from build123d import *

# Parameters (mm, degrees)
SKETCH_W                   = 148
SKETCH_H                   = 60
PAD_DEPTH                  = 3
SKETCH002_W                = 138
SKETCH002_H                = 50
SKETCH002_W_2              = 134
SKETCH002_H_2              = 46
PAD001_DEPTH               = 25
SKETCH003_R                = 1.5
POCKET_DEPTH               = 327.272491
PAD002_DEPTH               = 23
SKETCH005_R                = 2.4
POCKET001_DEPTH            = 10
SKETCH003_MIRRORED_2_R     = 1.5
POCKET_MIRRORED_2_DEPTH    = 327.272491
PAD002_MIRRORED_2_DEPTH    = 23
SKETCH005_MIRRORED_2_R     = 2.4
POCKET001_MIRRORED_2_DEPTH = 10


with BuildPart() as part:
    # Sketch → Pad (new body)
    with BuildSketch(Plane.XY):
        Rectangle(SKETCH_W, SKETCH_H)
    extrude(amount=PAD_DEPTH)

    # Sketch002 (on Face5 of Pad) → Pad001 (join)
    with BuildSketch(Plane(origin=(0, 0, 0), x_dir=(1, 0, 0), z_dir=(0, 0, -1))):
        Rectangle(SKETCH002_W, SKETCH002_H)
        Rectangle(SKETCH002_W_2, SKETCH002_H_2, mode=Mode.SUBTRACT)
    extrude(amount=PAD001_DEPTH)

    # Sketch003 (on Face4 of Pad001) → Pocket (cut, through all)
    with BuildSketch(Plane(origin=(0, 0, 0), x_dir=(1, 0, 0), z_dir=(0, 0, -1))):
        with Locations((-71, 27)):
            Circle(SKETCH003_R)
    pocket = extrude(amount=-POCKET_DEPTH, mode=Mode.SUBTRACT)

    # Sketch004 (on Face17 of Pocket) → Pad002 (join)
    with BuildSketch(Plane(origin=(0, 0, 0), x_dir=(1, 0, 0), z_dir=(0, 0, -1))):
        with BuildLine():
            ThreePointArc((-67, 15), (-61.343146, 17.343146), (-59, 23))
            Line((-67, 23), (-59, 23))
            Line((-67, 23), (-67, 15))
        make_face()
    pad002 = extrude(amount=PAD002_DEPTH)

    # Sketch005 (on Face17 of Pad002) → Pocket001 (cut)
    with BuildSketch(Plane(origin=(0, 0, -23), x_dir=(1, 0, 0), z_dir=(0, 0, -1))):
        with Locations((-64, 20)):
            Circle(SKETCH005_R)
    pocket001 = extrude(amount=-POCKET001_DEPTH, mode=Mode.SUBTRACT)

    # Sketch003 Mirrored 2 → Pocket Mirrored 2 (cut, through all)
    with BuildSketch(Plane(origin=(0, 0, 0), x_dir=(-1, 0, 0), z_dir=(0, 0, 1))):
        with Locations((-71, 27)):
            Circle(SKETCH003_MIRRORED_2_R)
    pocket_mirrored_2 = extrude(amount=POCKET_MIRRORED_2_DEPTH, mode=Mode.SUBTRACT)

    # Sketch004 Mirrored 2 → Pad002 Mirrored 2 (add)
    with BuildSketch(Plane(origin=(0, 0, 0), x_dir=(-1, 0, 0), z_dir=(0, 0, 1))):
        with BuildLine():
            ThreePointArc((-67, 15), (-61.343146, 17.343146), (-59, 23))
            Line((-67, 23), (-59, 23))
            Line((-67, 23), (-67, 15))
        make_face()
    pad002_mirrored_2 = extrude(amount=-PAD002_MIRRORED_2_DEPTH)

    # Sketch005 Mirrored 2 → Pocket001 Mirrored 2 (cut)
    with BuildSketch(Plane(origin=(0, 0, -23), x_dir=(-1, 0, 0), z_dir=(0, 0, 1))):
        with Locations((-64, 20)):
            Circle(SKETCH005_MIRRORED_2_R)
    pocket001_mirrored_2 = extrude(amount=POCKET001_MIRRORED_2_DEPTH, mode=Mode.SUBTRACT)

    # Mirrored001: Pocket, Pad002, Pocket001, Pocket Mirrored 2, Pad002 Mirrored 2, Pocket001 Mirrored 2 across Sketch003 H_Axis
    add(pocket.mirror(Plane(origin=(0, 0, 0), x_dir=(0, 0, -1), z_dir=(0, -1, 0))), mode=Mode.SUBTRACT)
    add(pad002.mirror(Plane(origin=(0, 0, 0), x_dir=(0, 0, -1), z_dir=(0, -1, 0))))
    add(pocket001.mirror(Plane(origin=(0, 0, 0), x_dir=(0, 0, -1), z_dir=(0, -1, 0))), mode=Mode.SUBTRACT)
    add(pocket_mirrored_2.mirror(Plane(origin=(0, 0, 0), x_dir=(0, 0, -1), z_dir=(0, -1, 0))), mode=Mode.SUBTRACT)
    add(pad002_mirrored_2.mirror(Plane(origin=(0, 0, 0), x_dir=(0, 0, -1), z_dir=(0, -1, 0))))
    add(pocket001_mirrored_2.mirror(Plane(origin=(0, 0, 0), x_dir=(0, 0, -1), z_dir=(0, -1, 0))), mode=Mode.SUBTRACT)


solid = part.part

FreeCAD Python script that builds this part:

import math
import FreeCAD as App
import Part
import Sketcher

V = App.Vector


def add_polygon(sketch, points):
    """Adds a closed chain of lines whose ends are joined by coincident constraints."""
    first, n = sketch.GeometryCount, len(points)
    for a, b in zip(points, points[1:] + points[:1]):
        sketch.addGeometry(Part.LineSegment(App.Vector(*a, 0), App.Vector(*b, 0)), False)
    for i in range(n):
        sketch.addConstraint(Sketcher.Constraint("Coincident", first + i, 2, first + (i + 1) % n, 1))

doc = App.newDocument("Part")
body = doc.addObject("PartDesign::Body", "Body")

sketch1 = body.newObject("Sketcher::SketchObject", "Sketch")
sketch1.AttachmentSupport = (doc.getObject("XY_Plane"), [""])
sketch1.MapMode = "FlatFace"
add_polygon(sketch1, [(-74, 30), (-74, -30), (74, -30), (74, 30)])
sketch1.addConstraint([
    Sketcher.Constraint("Vertical", 0),
    Sketcher.Constraint("Horizontal", 1),
    Sketcher.Constraint("Vertical", 2),
    Sketcher.Constraint("Horizontal", 3),
    Sketcher.Constraint("Symmetric", 0, 2, 2, 2, -1, 1),
    Sketcher.Constraint("DistanceX", 1, 1, 1, 2, 148.0),
    Sketcher.Constraint("DistanceY", 0, 2, 0, 1, 60.0),
])
pad1 = body.newObject("PartDesign::Pad", "Pad")
pad1.Profile = sketch1
pad1.Length = 3

sketch2 = body.newObject("Sketcher::SketchObject", "Sketch001")
sketch2.AttachmentSupport = (doc.getObject("XY_Plane"), [""])
sketch2.MapMode = "FlatFace"
add_polygon(sketch2, [(-69, -25), (-69, 25), (69, 25), (69, -25)])
add_polygon(sketch2, [(67, 23), (-67, 23), (-67, -23), (67, -23)])
sketch2.addConstraint([
    Sketcher.Constraint("Vertical", 0),
    Sketcher.Constraint("Horizontal", 1),
    Sketcher.Constraint("Vertical", 2),
    Sketcher.Constraint("Horizontal", 3),
    Sketcher.Constraint("Horizontal", 4),
    Sketcher.Constraint("Vertical", 5),
    Sketcher.Constraint("Horizontal", 6),
    Sketcher.Constraint("Vertical", 7),
    Sketcher.Constraint("Symmetric", 0, 2, 2, 2, -1, 1),
    Sketcher.Constraint("Symmetric", 4, 2, 6, 2, -1, 1),
    Sketcher.Constraint("DistanceX", 1, 1, 1, 2, 138.0),
    Sketcher.Constraint("DistanceX", 4, 2, 4, 1, 134.0),
    Sketcher.Constraint("DistanceY", 0, 1, 0, 2, 50.0),
    Sketcher.Constraint("DistanceY", 5, 2, 5, 1, 46.0),
])
pad2 = body.newObject("PartDesign::Pad", "Pad001")
pad2.Profile = sketch2
pad2.Length = 25
pad2.Reversed = True

sketch3 = body.newObject("Sketcher::SketchObject", "Sketch002")
sketch3.AttachmentSupport = (doc.getObject("XY_Plane"), [""])
sketch3.MapMode = "FlatFace"
sketch3.addGeometry(Part.Circle(V(-71, -27, 0), V(0, 0, 1), 1.5), False)
sketch3.addConstraint([
    Sketcher.Constraint("Diameter", 0, 3.0),
    Sketcher.Constraint("DistanceX", 0, 3, -1, 1, 71.0),
    Sketcher.Constraint("DistanceY", 0, 3, -1, 1, 27.0),
])
pocket1 = body.newObject("PartDesign::Pocket", "Pocket")
pocket1.Profile = sketch3
pocket1.Type = "ThroughAll"
pocket1.Reversed = True

sketch4 = body.newObject("Sketcher::SketchObject", "Sketch003")
sketch4.AttachmentSupport = (doc.getObject("XY_Plane"), [""])
sketch4.MapMode = "FlatFace"
sketch4.addGeometry([
    Part.ArcOfCircle(Part.Circle(V(-67, -23, 0), V(0, 0, 1), 8), math.radians(0), math.radians(90)),
    Part.LineSegment(V(-59, -23, 0), V(-67, -23, 0)),
    Part.LineSegment(V(-67, -23, 0), V(-67, -15, 0)),
], False)
sketch4.addConstraint([
    Sketcher.Constraint("Coincident", 0, 1, 1, 1),
    Sketcher.Constraint("Coincident", 1, 2, 2, 1),
    Sketcher.Constraint("Coincident", 2, 2, 0, 2),
    Sketcher.Constraint("Horizontal", 1),
    Sketcher.Constraint("Vertical", 2),
    Sketcher.Constraint("Coincident", 1, 2, 0, 3),
    Sketcher.Constraint("Radius", 0, 8.000001),
    Sketcher.Constraint("DistanceX", 0, 3, -1, 1, 67.000001),
    Sketcher.Constraint("DistanceY", 0, 3, -1, 1, 23.000001),
])
pad3 = body.newObject("PartDesign::Pad", "Pad002")
pad3.Profile = sketch4
pad3.Length = 23
pad3.Reversed = True

sketch5 = body.newObject("Sketcher::SketchObject", "Sketch004")
sketch5.AttachmentSupport = (doc.getObject("XY_Plane"), [""])
sketch5.MapMode = "FlatFace"
sketch5.AttachmentOffset = App.Placement(V(0, 0, -23), App.Rotation())
sketch5.addGeometry(Part.Circle(V(-64, -20, 0), V(0, 0, 1), 2.4), False)
sketch5.addConstraint([
    Sketcher.Constraint("Diameter", 0, 4.8),
    Sketcher.Constraint("DistanceX", 0, 3, -1, 1, 64.0),
    Sketcher.Constraint("DistanceY", 0, 3, -1, 1, 20.0),
])
pocket2 = body.newObject("PartDesign::Pocket", "Pocket001")
pocket2.Profile = sketch5
pocket2.Length = 10
pocket2.Reversed = True

sketch6 = body.newObject("Sketcher::SketchObject", "Sketch005")
sketch6.AttachmentSupport = (doc.getObject("XY_Plane"), [""])
sketch6.MapMode = "FlatFace"
sketch6.addGeometry(Part.Circle(V(71, -27, 0), V(0, 0, 1), 1.5), False)
sketch6.addConstraint([
    Sketcher.Constraint("Diameter", 0, 3.0),
    Sketcher.Constraint("DistanceX", -1, 1, 0, 3, 71.0),
    Sketcher.Constraint("DistanceY", 0, 3, -1, 1, 27.0),
])
pocket3 = body.newObject("PartDesign::Pocket", "Pocket002")
pocket3.Profile = sketch6
pocket3.Type = "ThroughAll"
pocket3.Reversed = True

sketch7 = body.newObject("Sketcher::SketchObject", "Sketch006")
sketch7.AttachmentSupport = (doc.getObject("XY_Plane"), [""])
sketch7.MapMode = "FlatFace"
sketch7.addGeometry([
    Part.ArcOfCircle(Part.Circle(V(67, -23, 0), V(0, 0, 1), 8), math.radians(90), math.radians(180)),
    Part.LineSegment(V(59, -23, 0), V(67, -23, 0)),
    Part.LineSegment(V(67, -23, 0), V(67, -15, 0)),
], False)
sketch7.addConstraint([
    Sketcher.Constraint("Coincident", 0, 2, 1, 1),
    Sketcher.Constraint("Coincident", 1, 2, 2, 1),
    Sketcher.Constraint("Coincident", 2, 2, 0, 1),
    Sketcher.Constraint("Horizontal", 1),
    Sketcher.Constraint("Vertical", 2),
    Sketcher.Constraint("Coincident", 1, 2, 0, 3),
    Sketcher.Constraint("Radius", 0, 8.000001),
    Sketcher.Constraint("DistanceX", -1, 1, 0, 3, 67.000001),
    Sketcher.Constraint("DistanceY", 0, 3, -1, 1, 23.000001),
])
pad4 = body.newObject("PartDesign::Pad", "Pad003")
pad4.Profile = sketch7
pad4.Length = 23
pad4.Reversed = True

sketch8 = body.newObject("Sketcher::SketchObject", "Sketch007")
sketch8.AttachmentSupport = (doc.getObject("XY_Plane"), [""])
sketch8.MapMode = "FlatFace"
sketch8.AttachmentOffset = App.Placement(V(0, 0, -23), App.Rotation())
sketch8.addGeometry(Part.Circle(V(64, -20, 0), V(0, 0, 1), 2.4), False)
sketch8.addConstraint([
    Sketcher.Constraint("Diameter", 0, 4.8),
    Sketcher.Constraint("DistanceX", -1, 1, 0, 3, 64.0),
    Sketcher.Constraint("DistanceY", 0, 3, -1, 1, 20.0),
])
pocket4 = body.newObject("PartDesign::Pocket", "Pocket003")
pocket4.Profile = sketch8
pocket4.Length = 10
pocket4.Reversed = True
doc.recompute()

mirrored = body.newObject("PartDesign::Mirrored", "Mirrored")
mirrored.Originals = [pocket1, pad3, pocket2, pocket3, pad4, pocket4]
mirrored.MirrorPlane = (doc.getObject("XZ_Plane"), [""])
body.Tip = mirrored

doc.recompute()
